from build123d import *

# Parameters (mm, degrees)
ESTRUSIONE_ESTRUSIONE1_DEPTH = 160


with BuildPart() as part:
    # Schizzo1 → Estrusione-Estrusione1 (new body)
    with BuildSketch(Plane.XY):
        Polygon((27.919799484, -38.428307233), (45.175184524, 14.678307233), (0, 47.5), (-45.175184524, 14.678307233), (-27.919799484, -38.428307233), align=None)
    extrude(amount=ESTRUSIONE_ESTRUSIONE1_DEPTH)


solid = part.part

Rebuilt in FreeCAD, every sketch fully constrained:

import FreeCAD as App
import Part
import Sketcher
Q = App.Units.Quantity


def add_polygon(sketch, points):
    """Adds a closed chain of lines whose ends are joined by coincident constraints."""
    first, n = sketch.GeometryCount, len(points)
    for a, b in zip(points, points[1:] + points[:1]):
        sketch.addGeometry(Part.LineSegment(App.Vector(*a, 0), App.Vector(*b, 0)), False)
    for i in range(n):
        sketch.addConstraint(Sketcher.Constraint("Coincident", first + i, 2, first + (i + 1) % n, 1))

doc = App.newDocument("Part")
body = doc.addObject("PartDesign::Body", "Body")

# Sketch on XY plane
sketch1 = body.newObject("Sketcher::SketchObject", "Sketch")
sketch1.AttachmentSupport = (doc.getObject("XY_Plane"), [""])
sketch1.MapMode = "FlatFace"
add_polygon(sketch1, [(28, -38), (45, 15), (0, 48), (-45, 15), (-28, -38)])  # lines 0-4
sketch1.addConstraint(Sketcher.Constraint("Horizontal", 4))
sketch1.addConstraint(Sketcher.Constraint("Symmetric", 0, 2, 2, 2, -2))
sketch1.addConstraint(Sketcher.Constraint("PointOnObject", 1, 2, -2))
sketch1.addConstraint(Sketcher.Constraint("Equal", 0, 1))
sketch1.addConstraint(Sketcher.Constraint("Equal", 2, 3))
sketch1.addConstraint(Sketcher.Constraint("Angle", 0, Q("72 deg")))
sketch1.addConstraint(Sketcher.Constraint("Angle", 1, Q("144 deg")))
sketch1.addConstraint(Sketcher.Constraint("DistanceY", -1, 1, 1, 2, Q("47.5 mm")))
sketch1.addConstraint(Sketcher.Constraint("DistanceX", 4, 1, 4, 2, Q("55.839599 mm")))
pad1 = body.newObject("PartDesign::Pad", "Pad")
pad1.Profile = sketch1
pad1.Length = 160

doc.recompute()
